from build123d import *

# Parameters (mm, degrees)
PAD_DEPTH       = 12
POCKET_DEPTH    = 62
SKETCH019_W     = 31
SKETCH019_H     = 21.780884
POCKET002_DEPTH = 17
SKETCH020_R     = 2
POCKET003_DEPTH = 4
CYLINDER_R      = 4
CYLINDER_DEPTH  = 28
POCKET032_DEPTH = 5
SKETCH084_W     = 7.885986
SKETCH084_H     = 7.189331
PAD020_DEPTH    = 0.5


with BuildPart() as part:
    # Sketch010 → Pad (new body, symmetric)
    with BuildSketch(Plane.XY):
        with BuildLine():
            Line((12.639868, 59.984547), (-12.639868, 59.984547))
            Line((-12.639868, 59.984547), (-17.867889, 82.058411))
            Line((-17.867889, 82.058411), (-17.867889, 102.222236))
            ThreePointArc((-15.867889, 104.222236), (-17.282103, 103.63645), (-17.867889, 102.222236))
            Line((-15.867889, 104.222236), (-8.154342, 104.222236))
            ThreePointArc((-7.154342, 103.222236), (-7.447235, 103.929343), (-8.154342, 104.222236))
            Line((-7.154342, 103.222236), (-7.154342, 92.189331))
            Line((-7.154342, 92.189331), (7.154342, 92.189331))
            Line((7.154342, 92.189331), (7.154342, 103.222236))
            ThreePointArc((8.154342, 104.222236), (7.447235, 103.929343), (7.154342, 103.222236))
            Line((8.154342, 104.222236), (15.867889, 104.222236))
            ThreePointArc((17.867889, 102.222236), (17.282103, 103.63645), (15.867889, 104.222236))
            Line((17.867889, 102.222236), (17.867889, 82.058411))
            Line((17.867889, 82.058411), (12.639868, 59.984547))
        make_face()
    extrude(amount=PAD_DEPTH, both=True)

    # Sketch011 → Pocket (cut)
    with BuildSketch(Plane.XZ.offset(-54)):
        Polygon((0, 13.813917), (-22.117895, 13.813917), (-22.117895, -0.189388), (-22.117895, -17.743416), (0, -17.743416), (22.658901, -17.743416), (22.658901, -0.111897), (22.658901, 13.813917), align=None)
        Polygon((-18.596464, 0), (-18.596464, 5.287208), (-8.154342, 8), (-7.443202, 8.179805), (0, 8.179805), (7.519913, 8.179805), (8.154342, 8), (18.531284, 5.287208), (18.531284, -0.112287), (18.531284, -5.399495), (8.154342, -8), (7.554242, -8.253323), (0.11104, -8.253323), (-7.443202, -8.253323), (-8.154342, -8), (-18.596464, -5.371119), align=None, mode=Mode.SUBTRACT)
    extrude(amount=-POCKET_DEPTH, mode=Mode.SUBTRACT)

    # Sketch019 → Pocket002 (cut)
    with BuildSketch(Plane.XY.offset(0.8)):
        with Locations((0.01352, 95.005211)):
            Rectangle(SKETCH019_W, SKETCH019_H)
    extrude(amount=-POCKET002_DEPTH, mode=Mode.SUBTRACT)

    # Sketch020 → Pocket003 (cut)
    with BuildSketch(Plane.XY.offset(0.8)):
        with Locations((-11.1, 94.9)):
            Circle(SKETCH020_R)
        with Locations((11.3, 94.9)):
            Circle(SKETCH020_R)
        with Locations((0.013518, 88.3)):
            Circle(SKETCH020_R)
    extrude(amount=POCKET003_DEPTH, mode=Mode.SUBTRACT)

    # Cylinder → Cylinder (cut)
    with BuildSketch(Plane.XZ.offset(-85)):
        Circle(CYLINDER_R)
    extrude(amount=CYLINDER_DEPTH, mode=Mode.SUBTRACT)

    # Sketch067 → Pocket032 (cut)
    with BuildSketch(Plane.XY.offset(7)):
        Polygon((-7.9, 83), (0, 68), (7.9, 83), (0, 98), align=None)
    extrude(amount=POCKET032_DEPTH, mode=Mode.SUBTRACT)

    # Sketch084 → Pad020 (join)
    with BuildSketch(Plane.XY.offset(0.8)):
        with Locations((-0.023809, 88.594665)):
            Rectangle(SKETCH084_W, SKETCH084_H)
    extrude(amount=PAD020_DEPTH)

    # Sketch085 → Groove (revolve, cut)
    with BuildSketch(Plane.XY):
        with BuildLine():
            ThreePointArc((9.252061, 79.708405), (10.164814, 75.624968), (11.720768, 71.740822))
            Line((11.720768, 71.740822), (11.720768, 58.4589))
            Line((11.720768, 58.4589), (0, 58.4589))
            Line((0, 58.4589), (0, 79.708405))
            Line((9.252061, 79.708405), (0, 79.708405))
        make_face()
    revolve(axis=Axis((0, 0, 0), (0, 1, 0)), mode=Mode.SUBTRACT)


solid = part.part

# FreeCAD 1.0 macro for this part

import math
import FreeCAD as App
import Part
import Sketcher

V = App.Vector

doc = App.newDocument("Part")
body = doc.addObject("PartDesign::Body", "Body")

# Sketch on XY plane
sketch1 = body.newObject("Sketcher::SketchObject", "Sketch")
sketch1.AttachmentSupport = (doc.getObject("XY_Plane"), [""])
sketch1.MapMode = "FlatFace"
sketch1.addGeometry(Part.LineSegment(V(-12.6, 60, 0), V(12.6, 60, 0)), False)
sketch1.addGeometry(Part.LineSegment(V(12.6, 60, 0), V(17.9, 82.1, 0)), False)
sketch1.addGeometry(Part.LineSegment(V(17.9, 82.1, 0), V(17.9, 102.2, 0)), False)
sketch1.addGeometry(Part.ArcOfCircle(Part.Circle(V(15.9, 102.2, 0), V(0, 0, 1), 2), math.radians(0), math.radians(90)), False)
sketch1.addGeometry(Part.LineSegment(V(15.9, 104.2, 0), V(8.2, 104.2, 0)), False)
sketch1.addGeometry(Part.ArcOfCircle(Part.Circle(V(8.2, 103.2, 0), V(0, 0, 1), 1), math.radians(90), math.radians(180)), False)
sketch1.addGeometry(Part.LineSegment(V(7.2, 103.2, 0), V(7.2, 92.2, 0)), False)
sketch1.addGeometry(Part.LineSegment(V(7.2, 92.2, 0), V(-7.2, 92.2, 0)), False)
sketch1.addGeometry(Part.LineSegment(V(-7.2, 92.2, 0), V(-7.2, 103.2, 0)), False)
sketch1.addGeometry(Part.ArcOfCircle(Part.Circle(V(-8.2, 103.2, 0), V(0, 0, 1), 1), math.radians(0), math.radians(90)), False)
sketch1.addGeometry(Part.LineSegment(V(-8.2, 104.2, 0), V(-15.9, 104.2, 0)), False)
sketch1.addGeometry(Part.ArcOfCircle(Part.Circle(V(-15.9, 102.2, 0), V(0, 0, 1), 2), math.radians(90), math.radians(180)), False)
sketch1.addGeometry(Part.LineSegment(V(-17.9, 102.2, 0), V(-17.9, 82.1, 0)), False)
sketch1.addGeometry(Part.LineSegment(V(-17.9, 82.1, 0), V(-12.6, 60, 0)), False)
sketch1.addConstraint(Sketcher.Constraint("Coincident", 0, 2, 1, 1))
sketch1.addConstraint(Sketcher.Constraint("Coincident", 1, 2, 2, 1))
sketch1.addConstraint(Sketcher.Constraint("Tangent", 2, 2, 3, 1))
sketch1.addConstraint(Sketcher.Constraint("Tangent", 3, 2, 4, 1))
sketch1.addConstraint(Sketcher.Constraint("Tangent", 4, 2, 5, 1))
sketch1.addConstraint(Sketcher.Constraint("Tangent", 5, 2, 6, 1))
sketch1.addConstraint(Sketcher.Constraint("Coincident", 6, 2, 7, 1))
sketch1.addConstraint(Sketcher.Constraint("Coincident", 7, 2, 8, 1))
sketch1.addConstraint(Sketcher.Constraint("Tangent", 8, 2, 9, 1))
sketch1.addConstraint(Sketcher.Constraint("Tangent", 9, 2, 10, 1))
sketch1.addConstraint(Sketcher.Constraint("Tangent", 10, 2, 11, 1))
sketch1.addConstraint(Sketcher.Constraint("Tangent", 11, 2, 12, 1))
sketch1.addConstraint(Sketcher.Constraint("Coincident", 12, 2, 13, 1))
sketch1.addConstraint(Sketcher.Constraint("Coincident", 13, 2, 0, 1))
sketch1.addConstraint(Sketcher.Constraint("Horizontal", 0))
sketch1.addConstraint(Sketcher.Constraint("Vertical", 2))
sketch1.addConstraint(Sketcher.Constraint("Horizontal", 4))
sketch1.addConstraint(Sketcher.Constraint("Vertical", 6))
sketch1.addConstraint(Sketcher.Constraint("Horizontal", 7))
sketch1.addConstraint(Sketcher.Constraint("Vertical", 8))
sketch1.addConstraint(Sketcher.Constraint("Horizontal", 10))
sketch1.addConstraint(Sketcher.Constraint("Vertical", 12))
sketch1.addConstraint(Sketcher.Constraint("Equal", 5, 9))
sketch1.addConstraint(Sketcher.Constraint("Equal", 3, 11))
sketch1.addConstraint(Sketcher.Constraint("Symmetric", 5, 3, 9, 3, -2))
sketch1.addConstraint(Sketcher.Constraint("Symmetric", 1, 2, 12, 2, -2))
sketch1.addConstraint(Sketcher.Constraint("Equal", 1, 13))
sketch1.addConstraint(Sketcher.Constraint("Radius", 3, 1.999999))
sketch1.addConstraint(Sketcher.Constraint("Radius", 5, 0.999999))
sketch1.addConstraint(Sketcher.Constraint("DistanceX", 0, 1, 0, 2, 25.279736))
sketch1.addConstraint(Sketcher.Constraint("DistanceX", 4, 2, 4, 1, 7.713547))
sketch1.addConstraint(Sketcher.Constraint("DistanceX", 7, 2, 7, 1, 14.308684))
sketch1.addConstraint(Sketcher.Constraint("DistanceY", 2, 1, 2, 2, 20.163825))
sketch1.addConstraint(Sketcher.Constraint("DistanceY", 6, 2, 6, 1, 11.032905))
sketch1.addConstraint(Sketcher.Constraint("DistanceY", -1, 1, 1, 2, 82.058411))
sketch1.addConstraint(Sketcher.Constraint("DistanceY", 0, 2, 3, 3, 42.23769))
pad1 = body.newObject("PartDesign::Pad", "Pad")
pad1.Profile = sketch1
pad1.Length = 24
pad1.Midplane = True

# Sketch on XZ plane
sketch2 = body.newObject("Sketcher::SketchObject", "Sketch001")
sketch2.AttachmentSupport = (doc.getObject("XZ_Plane"), [""])
sketch2.MapMode = "FlatFace"
sketch2.AttachmentOffset = App.Placement(V(0, 0, -54), App.Rotation())
sketch2.addGeometry(Part.LineSegment(V(-22.1, 13.8, 0), V(-22.1, -17.7, 0)), False)
sketch2.addGeometry(Part.LineSegment(V(-22.1, -17.7, 0), V(22.7, -17.7, 0)), False)
sketch2.addGeometry(Part.LineSegment(V(22.7, -17.7, 0), V(22.7, 13.8, 0)), False)
sketch2.addGeometry(Part.LineSegment(V(22.7, 13.8, 0), V(-22.1, 13.8, 0)), False)
sketch2.addGeometry(Part.LineSegment(V(-18.6, -5.4, 0), V(-18.6, 5.3, 0)), False)
sketch2.addGeometry(Part.LineSegment(V(-18.6, 5.3, 0), V(-8.2, 8, 0)), False)
sketch2.addGeometry(Part.LineSegment(V(-8.2, 8, 0), V(-7.4, 8.2, 0)), False)
sketch2.addGeometry(Part.LineSegment(V(-7.4, 8.2, 0), V(7.5, 8.2, 0)), False)
sketch2.addGeometry(Part.LineSegment(V(7.5, 8.2, 0), V(8.2, 8, 0)), False)
sketch2.addGeometry(Part.LineSegment(V(8.2, 8, 0), V(18.5, 5.3, 0)), False)
sketch2.addGeometry(Part.LineSegment(V(18.5, 5.3, 0), V(18.5, -5.4, 0)), False)
sketch2.addGeometry(Part.LineSegment(V(18.5, -5.4, 0), V(8.2, -8, 0)), False)
sketch2.addGeometry(Part.LineSegment(V(8.2, -8, 0), V(7.6, -8.3, 0)), False)
sketch2.addGeometry(Part.LineSegment(V(7.6, -8.3, 0), V(-7.4, -8.3, 0)), False)
sketch2.addGeometry(Part.LineSegment(V(-7.4, -8.3, 0), V(-8.2, -8, 0)), False)
sketch2.addGeometry(Part.LineSegment(V(-8.2, -8, 0), V(-18.6, -5.4, 0)), False)
sketch2.addConstraint(Sketcher.Constraint("Coincident", 0, 2, 1, 1))
sketch2.addConstraint(Sketcher.Constraint("Coincident", 1, 2, 2, 1))
sketch2.addConstraint(Sketcher.Constraint("Coincident", 2, 2, 3, 1))
sketch2.addConstraint(Sketcher.Constraint("Coincident", 3, 2, 0, 1))
sketch2.addConstraint(Sketcher.Constraint("Coincident", 4, 2, 5, 1))
sketch2.addConstraint(Sketcher.Constraint("Coincident", 5, 2, 6, 1))
sketch2.addConstraint(Sketcher.Constraint("Coincident", 6, 2, 7, 1))
sketch2.addConstraint(Sketcher.Constraint("Coincident", 7, 2, 8, 1))
sketch2.addConstraint(Sketcher.Constraint("Coincident", 8, 2, 9, 1))
sketch2.addConstraint(Sketcher.Constraint("Coincident", 9, 2, 10, 1))
sketch2.addConstraint(Sketcher.Constraint("Coincident", 10, 2, 11, 1))
sketch2.addConstraint(Sketcher.Constraint("Coincident", 11, 2, 12, 1))
sketch2.addConstraint(Sketcher.Constraint("Coincident", 12, 2, 13, 1))
sketch2.addConstraint(Sketcher.Constraint("Coincident", 13, 2, 14, 1))
sketch2.addConstraint(Sketcher.Constraint("Coincident", 14, 2, 15, 1))
sketch2.addConstraint(Sketcher.Constraint("Coincident", 15, 2, 4, 1))
sketch2.addConstraint(Sketcher.Constraint("Vertical", 0))
sketch2.addConstraint(Sketcher.Constraint("Horizontal", 1))
sketch2.addConstraint(Sketcher.Constraint("Vertical", 2))
sketch2.addConstraint(Sketcher.Constraint("Horizontal", 3))
sketch2.addConstraint(Sketcher.Constraint("Vertical", 4))
sketch2.addConstraint(Sketcher.Constraint("Horizontal", 7))
sketch2.addConstraint(Sketcher.Constraint("Vertical", 10))
sketch2.addConstraint(Sketcher.Constraint("Horizontal", 13))
sketch2.addConstraint(Sketcher.Constraint("Symmetric", 5, 2, 11, 2, -1, 1))
sketch2.addConstraint(Sketcher.Constraint("Symmetric", 8, 2, 14, 2, -1, 1))
sketch2.addConstraint(Sketcher.Constraint("Symmetric", 5, 2, 8, 2, -2))
sketch2.addConstraint(Sketcher.Constraint("Horizontal", 4, 2, 9, 2))
sketch2.addConstraint(Sketcher.Constraint("Vertical", 6, 2, 13, 2))
sketch2.addConstraint(Sketcher.Constraint("DistanceY", -1, 1, 5, 2, 8.0))
sketch2.addConstraint(Sketcher.Constraint("DistanceX", -1, 1, 1, 2, 22.658901))
sketch2.addConstraint(Sketcher.Constraint("DistanceY", 10, 2, 7, 2, 13.5793))
sketch2.addConstraint(Sketcher.Constraint("DistanceX", 12, 2, 11, 2, 0.6001))
sketch2.addConstraint(Sketcher.Constraint("Distance", 5, 10.788751))
sketch2.addConstraint(Sketcher.Constraint("Distance", 6, 0.733519))
sketch2.addConstraint(Sketcher.Constraint("Distance", 11, 10.697829))
sketch2.addConstraint(Sketcher.Constraint("Distance", 15, 10.767958))
sketch2.addConstraint(Sketcher.Constraint("DistanceX", 1, 1, 1, 2, 44.776796))
sketch2.addConstraint(Sketcher.Constraint("DistanceX", 7, 1, 7, 2, 14.963115))
sketch2.addConstraint(Sketcher.Constraint("DistanceX", 13, 2, 13, 1, 14.997444))
sketch2.addConstraint(Sketcher.Constraint("DistanceY", 0, 2, 0, 1, 31.557333))
sketch2.addConstraint(Sketcher.Constraint("DistanceY", 4, 1, 4, 2, 10.658327))
sketch2.addConstraint(Sketcher.Constraint("DistanceY", 10, 2, 10, 1, 10.686703))
sketch2.addConstraint(Sketcher.Constraint("DistanceY", 4, 2, 3, 2, 8.526709))
sketch2.addConstraint(Sketcher.Constraint("DistanceY", 12, 2, 10, 2, 2.853828))
pocket1 = body.newObject("PartDesign::Pocket", "Pocket")
pocket1.Profile = sketch2
pocket1.Length = 62

# Sketch on XY plane
sketch3 = body.newObject("Sketcher::SketchObject", "Sketch002")
sketch3.AttachmentSupport = (doc.getObject("XY_Plane"), [""])
sketch3.MapMode = "FlatFace"
sketch3.AttachmentOffset = App.Placement(V(0, 0, 0.8), App.Rotation())
sketch3.addGeometry(Part.LineSegment(V(-15, 106, 0), V(-15, 84, 0)), False)
sketch3.addGeometry(Part.LineSegment(V(-15, 84, 0), V(16, 84, 0)), False)
sketch3.addGeometry(Part.LineSegment(V(16, 84, 0), V(16, 106, 0)), False)
sketch3.addGeometry(Part.LineSegment(V(16, 106, 0), V(-15, 106, 0)), False)
sketch3.addConstraint(Sketcher.Constraint("Coincident", 0, 2, 1, 1))
sketch3.addConstraint(Sketcher.Constraint("Coincident", 1, 2, 2, 1))
sketch3.addConstraint(Sketcher.Constraint("Coincident", 2, 2, 3, 1))
sketch3.addConstraint(Sketcher.Constraint("Coincident", 3, 2, 0, 1))
sketch3.addConstraint(Sketcher.Constraint("Vertical", 0))
sketch3.addConstraint(Sketcher.Constraint("Horizontal", 1))
sketch3.addConstraint(Sketcher.Constraint("Vertical", 2))
sketch3.addConstraint(Sketcher.Constraint("Horizontal", 3))
sketch3.addConstraint(Sketcher.Constraint("DistanceX", 1, 1, 1, 2, 31.0))
sketch3.addConstraint(Sketcher.Constraint("DistanceY", 0, 2, 0, 1, 21.780884))
sketch3.addConstraint(Sketcher.Constraint("DistanceX", 0, 2, -1, 1, 15.48648))
sketch3.addConstraint(Sketcher.Constraint("DistanceY", -1, 1, 0, 2, 84.114769))
pocket2 = body.newObject("PartDesign::Pocket", "Pocket001")
pocket2.Profile = sketch3
pocket2.Length = 17

# Sketch on XY plane
sketch4 = body.newObject("Sketcher::SketchObject", "Sketch003")
sketch4.AttachmentSupport = (doc.getObject("XY_Plane"), [""])
sketch4.MapMode = "FlatFace"
sketch4.AttachmentOffset = App.Placement(V(0, 0, 0.8), App.Rotation())
sketch4.addGeometry(Part.Circle(V(-11.1, 94.9, 0), V(0, 0, 1), 2), False)
sketch4.addGeometry(Part.Circle(V(11.3, 94.9, 0), V(0, 0, 1), 2), False)
sketch4.addGeometry(Part.Circle(V(0, 88.3, 0), V(0, 0, 1), 2), False)
sketch4.addConstraint(Sketcher.Constraint("Equal", 0, 1))
sketch4.addConstraint(Sketcher.Constraint("Equal", 1, 2))
sketch4.addConstraint(Sketcher.Constraint("Horizontal", 0, 3, 1, 3))
sketch4.addConstraint(Sketcher.Constraint("Diameter", 0, 4.0))
sketch4.addConstraint(Sketcher.Constraint("DistanceX", 0, 3, -1, 1, 11.1))
sketch4.addConstraint(Sketcher.Constraint("DistanceY", -1, 1, 0, 3, 94.9))
sketch4.addConstraint(Sketcher.Constraint("DistanceX", -1, 1, 1, 3, 11.3))
sketch4.addConstraint(Sketcher.Constraint("DistanceY", -1, 1, 2, 3, 88.3))
sketch4.addConstraint(Sketcher.Constraint("DistanceX", -1, 1, 2, 3, 0.013518))
pocket3 = body.newObject("PartDesign::Pocket", "Pocket002")
pocket3.Profile = sketch4
pocket3.Length = 4
pocket3.Reversed = True

# Sketch on XZ plane
sketch5 = body.newObject("Sketcher::SketchObject", "Sketch004")
sketch5.AttachmentSupport = (doc.getObject("XZ_Plane"), [""])
sketch5.MapMode = "FlatFace"
sketch5.AttachmentOffset = App.Placement(V(0, 0, -85), App.Rotation())
sketch5.addGeometry(Part.Circle(V(0, 0, 0), V(0, 0, 1), 4), False)
sketch5.addConstraint(Sketcher.Constraint("Coincident", 0, 3, -1, 1))
sketch5.addConstraint(Sketcher.Constraint("Diameter", 0, 8.0))
pocket4 = body.newObject("PartDesign::Pocket", "Pocket003")
pocket4.Profile = sketch5
pocket4.Length = 28
pocket4.Reversed = True

# Sketch on XY plane
sketch6 = body.newObject("Sketcher::SketchObject", "Sketch005")
sketch6.AttachmentSupport = (doc.getObject("XY_Plane"), [""])
sketch6.MapMode = "FlatFace"
sketch6.AttachmentOffset = App.Placement(V(0, 0, 7), App.Rotation())
sketch6.addGeometry(Part.LineSegment(V(-8, 83, 0), V(0, 68, 0)), False)
sketch6.addGeometry(Part.LineSegment(V(0, 68, 0), V(8, 83, 0)), False)
sketch6.addGeometry(Part.LineSegment(V(8, 83, 0), V(0, 98, 0)), False)
sketch6.addGeometry(Part.LineSegment(V(0, 98, 0), V(-8, 83, 0)), False)
sketch6.addConstraint(Sketcher.Constraint("Coincident", 0, 2, 1, 1))
sketch6.addConstraint(Sketcher.Constraint("Coincident", 1, 2, 2, 1))
sketch6.addConstraint(Sketcher.Constraint("Coincident", 2, 2, 3, 1))
sketch6.addConstraint(Sketcher.Constraint("Coincident", 3, 2, 0, 1))
sketch6.addConstraint(Sketcher.Constraint("Symmetric", 1, 2, 3, 2, -2))
sketch6.addConstraint(Sketcher.Constraint("PointOnObject", 0, 2, -2))
sketch6.addConstraint(Sketcher.Constraint("PointOnObject", 2, 2, -2))
sketch6.addConstraint(Sketcher.Constraint("Parallel", 0, 2))
sketch6.addConstraint(Sketcher.Constraint("DistanceY", -1, 1, 0, 2, 68.0))
sketch6.addConstraint(Sketcher.Constraint("DistanceY", -1, 1, 1, 2, 83.0))
sketch6.addConstraint(Sketcher.Constraint("DistanceX", -1, 1, 1, 2, 7.9))
pocket5 = body.newObject("PartDesign::Pocket", "Pocket004")
pocket5.Profile = sketch6
pocket5.Length = 5
pocket5.Reversed = True

# Sketch on XY plane
sketch7 = body.newObject("Sketcher::SketchObject", "Sketch006")
sketch7.AttachmentSupport = (doc.getObject("XY_Plane"), [""])
sketch7.MapMode = "FlatFace"
sketch7.AttachmentOffset = App.Placement(V(0, 0, 0.8), App.Rotation())
sketch7.addGeometry(Part.LineSegment(V(-4, 92, 0), V(-4, 85, 0)), False)
sketch7.addGeometry(Part.LineSegment(V(-4, 85, 0), V(4, 85, 0)), False)
sketch7.addGeometry(Part.LineSegment(V(4, 85, 0), V(4, 92, 0)), False)
sketch7.addGeometry(Part.LineSegment(V(4, 92, 0), V(-4, 92, 0)), False)
sketch7.addConstraint(Sketcher.Constraint("Coincident", 0, 2, 1, 1))
sketch7.addConstraint(Sketcher.Constraint("Coincident", 1, 2, 2, 1))
sketch7.addConstraint(Sketcher.Constraint("Coincident", 2, 2, 3, 1))
sketch7.addConstraint(Sketcher.Constraint("Coincident", 3, 2, 0, 1))
sketch7.addConstraint(Sketcher.Constraint("Vertical", 0))
sketch7.addConstraint(Sketcher.Constraint("Horizontal", 1))
sketch7.addConstraint(Sketcher.Constraint("Vertical", 2))
sketch7.addConstraint(Sketcher.Constraint("Horizontal", 3))
sketch7.addConstraint(Sketcher.Constraint("DistanceY", -1, 1, 0, 2, 85.0))
sketch7.addConstraint(Sketcher.Constraint("DistanceY", 0, 2, 0, 1, 7.189331))
sketch7.addConstraint(Sketcher.Constraint("DistanceX", 0, 2, -1, 1, 3.966802))
sketch7.addConstraint(Sketcher.Constraint("DistanceX", 1, 1, 1, 2, 7.885986))
pad2 = body.newObject("PartDesign::Pad", "Pad001")
pad2.Profile = sketch7
pad2.Length = 0.5

# Sketch on XY plane
sketch8 = body.newObject("Sketcher::SketchObject", "Sketch007")
sketch8.AttachmentSupport = (doc.getObject("XY_Plane"), [""])
sketch8.MapMode = "FlatFace"
sketch8.addGeometry(Part.ArcOfCircle(Part.Circle(V(35, 83, 0), V(0, 0, 1), 26), math.radians(-172.02), math.radians(-153.55)), False)
sketch8.addGeometry(Part.LineSegment(V(9, 80, 0), V(0, 80, 0)), False)
sketch8.addGeometry(Part.LineSegment(V(0, 80, 0), V(0, 58, 0)), False)
sketch8.addGeometry(Part.LineSegment(V(0, 58, 0), V(12, 58, 0)), False)
sketch8.addGeometry(Part.LineSegment(V(12, 58, 0), V(12, 72, 0)), False)
sketch8.addConstraint(Sketcher.Constraint("Coincident", 0, 1, 1, 1))
sketch8.addConstraint(Sketcher.Constraint("Coincident", 1, 2, 2, 1))
sketch8.addConstraint(Sketcher.Constraint("Coincident", 2, 2, 3, 1))
sketch8.addConstraint(Sketcher.Constraint("Coincident", 3, 2, 4, 1))
sketch8.addConstraint(Sketcher.Constraint("Coincident", 4, 2, 0, 2))
sketch8.addConstraint(Sketcher.Constraint("Horizontal", 1))
sketch8.addConstraint(Sketcher.Constraint("Vertical", 2))
sketch8.addConstraint(Sketcher.Constraint("Horizontal", 3))
sketch8.addConstraint(Sketcher.Constraint("Vertical", 4))
sketch8.addConstraint(Sketcher.Constraint("PointOnObject", 1, 2, -2))
sketch8.addConstraint(Sketcher.Constraint("Radius", 0, 26.000018))
sketch8.addConstraint(Sketcher.Constraint("DistanceX", 1, 2, 1, 1, 9.252061))
sketch8.addConstraint(Sketcher.Constraint("DistanceY", 4, 1, 4, 2, 13.281922))
sketch8.addConstraint(Sketcher.Constraint("DistanceY", -1, 1, 2, 2, 58.4589))
sketch8.addConstraint(Sketcher.Constraint("DistanceY", 0, 1, 0, 3, 3.611599))
sketch8.addConstraint(Sketcher.Constraint("DistanceX", 3, 1, 3, 2, 11.720768))
groove = body.newObject("PartDesign::Groove", "Groove")
groove.Profile = sketch8
groove.ReferenceAxis = (sketch8, ["V_Axis"])
groove.Angle = 360

doc.recompute()
